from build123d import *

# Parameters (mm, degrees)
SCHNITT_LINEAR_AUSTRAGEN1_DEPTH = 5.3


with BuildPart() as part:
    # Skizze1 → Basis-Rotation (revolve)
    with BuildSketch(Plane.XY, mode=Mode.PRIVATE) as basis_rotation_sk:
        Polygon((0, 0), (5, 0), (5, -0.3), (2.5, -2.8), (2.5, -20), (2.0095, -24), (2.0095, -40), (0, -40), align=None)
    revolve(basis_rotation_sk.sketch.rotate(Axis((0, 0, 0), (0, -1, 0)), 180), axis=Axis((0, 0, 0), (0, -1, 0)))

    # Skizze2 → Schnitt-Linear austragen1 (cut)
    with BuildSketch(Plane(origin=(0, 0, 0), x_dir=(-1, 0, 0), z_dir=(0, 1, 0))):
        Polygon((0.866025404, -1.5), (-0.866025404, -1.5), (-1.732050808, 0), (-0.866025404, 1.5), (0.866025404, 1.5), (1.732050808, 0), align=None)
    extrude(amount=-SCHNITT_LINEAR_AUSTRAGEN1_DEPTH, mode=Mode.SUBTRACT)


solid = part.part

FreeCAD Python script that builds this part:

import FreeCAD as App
import Part
import Sketcher
from FreeCAD import Vector
Q = App.Units.Quantity

doc = App.newDocument("Part")
body = doc.addObject("PartDesign::Body", "Body")

# Sketch on XY plane
sketch1 = doc.addObject("Sketcher::SketchObject", "Sketch")
body.addObject(sketch1)
sketch1.AttachmentSupport = (doc.XY_Plane, [""])
sketch1.MapMode = "FlatFace"
sketch1.addGeometry([
    Part.LineSegment(Vector(5, 0, 0), Vector(0, 0, 0)),  # 0
    Part.LineSegment(Vector(0, 0, 0), Vector(0, -40, 0)),  # 1
    Part.LineSegment(Vector(0, -40, 0), Vector(2.0095, -40, 0)),  # 2
    Part.LineSegment(Vector(2.0095, -40, 0), Vector(2.0095, -24, 0)),  # 3
    Part.LineSegment(Vector(2.0095, -24, 0), Vector(2.5, -20, 0)),  # 4
    Part.LineSegment(Vector(2.5, -20, 0), Vector(2.5, -2.8, 0)),  # 5
    Part.LineSegment(Vector(2.5, -2.8, 0), Vector(5, -0.3, 0)),  # 6
    Part.LineSegment(Vector(5, -0.3, 0), Vector(5, 0, 0)),  # 7
], False)
sketch1.addConstraint([
    Sketcher.Constraint("Coincident", 0, 2, 1, 1),
    Sketcher.Constraint("Coincident", 1, 2, 2, 1),
    Sketcher.Constraint("Coincident", 2, 2, 3, 1),
    Sketcher.Constraint("Coincident", 3, 2, 4, 1),
    Sketcher.Constraint("Coincident", 4, 2, 5, 1),
    Sketcher.Constraint("Coincident", 5, 2, 6, 1),
    Sketcher.Constraint("Coincident", 6, 2, 7, 1),
    Sketcher.Constraint("Coincident", 7, 2, 0, 1),
    Sketcher.Constraint("Horizontal", 0),
    Sketcher.Constraint("Vertical", 1),
    Sketcher.Constraint("Horizontal", 2),
    Sketcher.Constraint("Vertical", 3),
    Sketcher.Constraint("Vertical", 5),
    Sketcher.Constraint("Vertical", 7),
    Sketcher.Constraint("Coincident", 0, 2, -1, 1),
    Sketcher.Constraint("DistanceX", 0, 2, 0, 1, Q("5 mm")),
    Sketcher.Constraint("DistanceY", 1, 2, 1, 1, Q("40 mm")),
    Sketcher.Constraint("DistanceY", 3, 1, 3, 2, Q("16 mm")),
    Sketcher.Constraint("Angle", 6, Q("45 deg")),
    Sketcher.Constraint("DistanceY", 5, 1, 5, 2, Q("17.2 mm")),
    Sketcher.Constraint("DistanceY", 7, 1, 7, 2, Q("0.3 mm")),
    Sketcher.Constraint("DistanceY", 4, 2, -1, 1, Q("20 mm")),
    Sketcher.Constraint("DistanceX", 2, 1, 2, 2, Q("2.0095 mm")),
])
revolution = doc.addObject("PartDesign::Revolution", "Revolution")
body.addObject(revolution)
revolution.Profile = sketch1
revolution.ReferenceAxis = (sketch1, ["V_Axis"])
revolution.Angle = 360

# Sketch on XZ plane
sketch2 = doc.addObject("Sketcher::SketchObject", "Sketch001")
body.addObject(sketch2)
sketch2.AttachmentSupport = (doc.XZ_Plane, [""])
sketch2.MapMode = "FlatFace"
sketch2.addGeometry([
    Part.LineSegment(Vector(0.866025, -1.5, 0), Vector(-0.866025, -1.5, 0)),  # 0
    Part.LineSegment(Vector(-0.866025, -1.5, 0), Vector(-1.732051, 0, 0)),  # 1
    Part.LineSegment(Vector(-1.732051, 0, 0), Vector(-0.866025, 1.5, 0)),  # 2
    Part.LineSegment(Vector(-0.866025, 1.5, 0), Vector(0.866025, 1.5, 0)),  # 3
    Part.LineSegment(Vector(0.866025, 1.5, 0), Vector(1.732051, 0, 0)),  # 4
    Part.LineSegment(Vector(1.732051, 0, 0), Vector(0.866025, -1.5, 0)),  # 5
], False)
sketch2.addConstraint([
    Sketcher.Constraint("Coincident", 0, 2, 1, 1),
    Sketcher.Constraint("Coincident", 1, 2, 2, 1),
    Sketcher.Constraint("Coincident", 2, 2, 3, 1),
    Sketcher.Constraint("Coincident", 3, 2, 4, 1),
    Sketcher.Constraint("Coincident", 4, 2, 5, 1),
    Sketcher.Constraint("Coincident", 5, 2, 0, 1),
    Sketcher.Constraint("Horizontal", 0),
    Sketcher.Constraint("Horizontal", 3),
    Sketcher.Constraint("Symmetric", 0, 2, 3, 2, -1, 1),
    Sketcher.Constraint("Symmetric", 1, 2, 4, 2, -1, 1),
    Sketcher.Constraint("PointOnObject", 1, 2, -1),
    Sketcher.Constraint("Parallel", 2, 5),
    Sketcher.Constraint("Vertical", 0, 2, 2, 2),
    Sketcher.Constraint("Angle", 1, Q("120 deg")),
    Sketcher.Constraint("DistanceY", 0, 2, 2, 2, Q("3 mm")),
    Sketcher.Constraint("DistanceX", 0, 2, 0, 1, Q("1.732051 mm")),
])
pocket1 = doc.addObject("PartDesign::Pocket", "Pocket")
body.addObject(pocket1)
pocket1.Profile = sketch2
pocket1.Length = 5.3
pocket1.Reversed = True

doc.recompute()
